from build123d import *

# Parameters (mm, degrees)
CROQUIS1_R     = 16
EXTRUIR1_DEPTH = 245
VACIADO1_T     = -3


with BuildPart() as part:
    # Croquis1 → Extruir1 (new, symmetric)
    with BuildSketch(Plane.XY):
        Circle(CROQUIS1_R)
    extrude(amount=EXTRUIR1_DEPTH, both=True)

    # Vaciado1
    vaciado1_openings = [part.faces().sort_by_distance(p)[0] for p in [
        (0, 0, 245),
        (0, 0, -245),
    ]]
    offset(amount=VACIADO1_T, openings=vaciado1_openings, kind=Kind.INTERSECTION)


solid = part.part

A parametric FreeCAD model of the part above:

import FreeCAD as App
import Part
import Sketcher

V = App.Vector


def faces_at(feature, points):
    """Names of the faces that lie closest to the given points."""
    faces = feature.Shape.Faces
    near = lambda p: min(range(len(faces)), key=lambda i: faces[i].distToShape(Part.Vertex(*p))[0])
    return sorted({f"Face{near(p) + 1}" for p in points})

doc = App.newDocument("Part")
body = doc.addObject("PartDesign::Body", "Body")

# Sketch on XY plane
sketch1 = doc.addObject("Sketcher::SketchObject", "Sketch")
body.addObject(sketch1)
sketch1.AttachmentSupport = (doc.XY_Plane, [""])
sketch1.MapMode = "FlatFace"
sketch1.addGeometry(Part.Circle(V(0, 0, 0), V(0, 0, 1), 16), False)
sketch1.addConstraint([
    Sketcher.Constraint("Coincident", 0, 3, -1, 1),
    Sketcher.Constraint("Diameter", 0, 32.0),
])
pad1 = doc.addObject("PartDesign::Pad", "Pad")
body.addObject(pad1)
pad1.Profile = sketch1
pad1.Length = 490
pad1.Midplane = True
doc.recompute()

thickness = doc.addObject("PartDesign::Thickness", "Thickness")
body.addObject(thickness)
thickness.Base = (pad1, faces_at(pad1, [(0, 0, 245), (0, 0, -245)]))
thickness.Value = 3
thickness.Reversed = True
thickness.Join = "Intersection"

doc.recompute()
